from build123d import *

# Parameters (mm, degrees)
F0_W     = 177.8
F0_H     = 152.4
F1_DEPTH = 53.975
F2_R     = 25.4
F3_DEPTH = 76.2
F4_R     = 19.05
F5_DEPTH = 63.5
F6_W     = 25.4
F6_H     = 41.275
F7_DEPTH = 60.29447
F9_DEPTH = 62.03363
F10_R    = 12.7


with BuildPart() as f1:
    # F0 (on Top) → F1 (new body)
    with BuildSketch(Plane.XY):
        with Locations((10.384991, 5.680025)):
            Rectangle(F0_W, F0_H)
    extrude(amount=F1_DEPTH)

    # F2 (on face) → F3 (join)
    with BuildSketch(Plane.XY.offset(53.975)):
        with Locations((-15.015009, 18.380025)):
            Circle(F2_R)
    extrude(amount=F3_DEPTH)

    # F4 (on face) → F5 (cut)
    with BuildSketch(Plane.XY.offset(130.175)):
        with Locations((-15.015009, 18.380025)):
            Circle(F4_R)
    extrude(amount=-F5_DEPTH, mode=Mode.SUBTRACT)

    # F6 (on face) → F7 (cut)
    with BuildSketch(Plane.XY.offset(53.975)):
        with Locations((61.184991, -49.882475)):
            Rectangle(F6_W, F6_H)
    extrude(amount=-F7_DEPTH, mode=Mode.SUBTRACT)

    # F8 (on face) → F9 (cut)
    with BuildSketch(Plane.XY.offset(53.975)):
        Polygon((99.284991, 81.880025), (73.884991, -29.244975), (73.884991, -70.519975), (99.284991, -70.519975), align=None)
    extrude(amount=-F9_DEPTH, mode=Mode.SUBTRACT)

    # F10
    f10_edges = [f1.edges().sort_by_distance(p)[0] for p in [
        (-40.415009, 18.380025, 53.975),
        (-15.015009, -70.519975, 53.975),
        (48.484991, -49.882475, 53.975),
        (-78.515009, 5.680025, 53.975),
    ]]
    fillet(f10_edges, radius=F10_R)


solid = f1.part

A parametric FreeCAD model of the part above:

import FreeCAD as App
import Part
import Sketcher
Q = App.Units.Quantity


def edges_at(feature, points):
    """Names of the edges that pass closest to the given points."""
    edges = feature.Shape.Edges
    near = lambda p: min(range(len(edges)), key=lambda i: edges[i].distToShape(Part.Vertex(*p))[0])
    return sorted({f"Edge{near(p) + 1}" for p in points})

doc = App.newDocument("Part")
body = doc.addObject("PartDesign::Body", "Body")

sketch1 = body.newObject("Sketcher::SketchObject", "Sketch")
sketch1.AttachmentSupport = (doc.getObject("XY_Plane"), [""])
sketch1.MapMode = "FlatFace"
sketch1.addGeometry([
    Part.LineSegment(App.Vector(-78.515009, 81.880025, 0), App.Vector(-78.515009, -70.519975, 0)),
    Part.LineSegment(App.Vector(-78.515009, -70.519975, 0), App.Vector(99.284991, -70.519975, 0)),
    Part.LineSegment(App.Vector(99.284991, -70.519975, 0), App.Vector(99.284991, 81.880025, 0)),
    Part.LineSegment(App.Vector(99.284991, 81.880025, 0), App.Vector(-78.515009, 81.880025, 0)),
], False)
sketch1.addConstraint([
    Sketcher.Constraint("Coincident", 0, 2, 1, 1),
    Sketcher.Constraint("Coincident", 1, 2, 2, 1),
    Sketcher.Constraint("Coincident", 2, 2, 3, 1),
    Sketcher.Constraint("Coincident", 3, 2, 0, 1),
    Sketcher.Constraint("Vertical", 0),
    Sketcher.Constraint("Horizontal", 1),
    Sketcher.Constraint("Vertical", 2),
    Sketcher.Constraint("Horizontal", 3),
    Sketcher.Constraint("DistanceX", 1, 1, 1, 2, Q("7 in")),
    Sketcher.Constraint("DistanceY", 0, 2, 0, 1, Q("6 in")),
    Sketcher.Constraint("DistanceX", 0, 2, -1, 1, 78.515009),
    Sketcher.Constraint("DistanceY", 0, 2, -1, 1, 70.519975),
])
pad1 = body.newObject("PartDesign::Pad", "Pad")
pad1.Profile = sketch1
pad1.Length = Q("2.125 in")

sketch2 = body.newObject("Sketcher::SketchObject", "Sketch001")
sketch2.AttachmentSupport = (doc.getObject("XY_Plane"), [""])
sketch2.MapMode = "FlatFace"
sketch2.AttachmentOffset = App.Placement(App.Vector(0, 0, 2.125 * 25.4), App.Rotation())
sketch2.addGeometry(Part.Circle(App.Vector(-15.015009, 18.380025, 0), App.Vector(0, 0, 1), 25.4), False)
sketch2.addConstraint([
    Sketcher.Constraint("Diameter", 0, Q("2 in")),
    Sketcher.Constraint("DistanceX", 0, 3, -1, 1, 15.015009),
    Sketcher.Constraint("DistanceY", -1, 1, 0, 3, 18.380025),
])
pad2 = body.newObject("PartDesign::Pad", "Pad001")
pad2.Profile = sketch2
pad2.Length = Q("3 in")

sketch3 = body.newObject("Sketcher::SketchObject", "Sketch002")
sketch3.AttachmentSupport = (doc.getObject("XY_Plane"), [""])
sketch3.MapMode = "FlatFace"
sketch3.AttachmentOffset = App.Placement(App.Vector(0, 0, 5.125 * 25.4), App.Rotation())
sketch3.addGeometry(Part.Circle(App.Vector(-15.015009, 18.380025, 0), App.Vector(0, 0, 1), 19.05), False)
sketch3.addConstraint([
    Sketcher.Constraint("Diameter", 0, Q("1.5 in")),
    Sketcher.Constraint("DistanceX", 0, 3, -1, 1, 15.015009),
    Sketcher.Constraint("DistanceY", -1, 1, 0, 3, 18.380025),
])
pocket1 = body.newObject("PartDesign::Pocket", "Pocket")
pocket1.Profile = sketch3
pocket1.Length = Q("2.5 in")

sketch4 = body.newObject("Sketcher::SketchObject", "Sketch003")
sketch4.AttachmentSupport = (doc.getObject("XY_Plane"), [""])
sketch4.MapMode = "FlatFace"
sketch4.AttachmentOffset = App.Placement(App.Vector(0, 0, 2.125 * 25.4), App.Rotation())
sketch4.addGeometry([
    Part.LineSegment(App.Vector(48.484991, -29.244975, 0), App.Vector(48.484991, -70.519975, 0)),
    Part.LineSegment(App.Vector(48.484991, -70.519975, 0), App.Vector(73.884991, -70.519975, 0)),
    Part.LineSegment(App.Vector(73.884991, -70.519975, 0), App.Vector(73.884991, -29.244975, 0)),
    Part.LineSegment(App.Vector(73.884991, -29.244975, 0), App.Vector(48.484991, -29.244975, 0)),
], False)
sketch4.addConstraint([
    Sketcher.Constraint("Coincident", 0, 2, 1, 1),
    Sketcher.Constraint("Coincident", 1, 2, 2, 1),
    Sketcher.Constraint("Coincident", 2, 2, 3, 1),
    Sketcher.Constraint("Coincident", 3, 2, 0, 1),
    Sketcher.Constraint("Vertical", 0),
    Sketcher.Constraint("Horizontal", 1),
    Sketcher.Constraint("Vertical", 2),
    Sketcher.Constraint("Horizontal", 3),
    Sketcher.Constraint("DistanceX", 1, 1, 1, 2, Q("1 in")),
    Sketcher.Constraint("DistanceY", 0, 2, 0, 1, Q("1.625 in")),
    Sketcher.Constraint("DistanceX", -1, 1, 0, 2, 48.484991),
    Sketcher.Constraint("DistanceY", 0, 2, -1, 1, 70.519975),
])
pocket2 = body.newObject("PartDesign::Pocket", "Pocket001")
pocket2.Profile = sketch4
pocket2.Length = 60.29447

sketch5 = body.newObject("Sketcher::SketchObject", "Sketch004")
sketch5.AttachmentSupport = (doc.getObject("XY_Plane"), [""])
sketch5.MapMode = "FlatFace"
sketch5.AttachmentOffset = App.Placement(App.Vector(0, 0, 2.125 * 25.4), App.Rotation())
sketch5.addGeometry([
    Part.LineSegment(App.Vector(99.284991, 81.880025, 0), App.Vector(73.884991, -29.244975, 0)),
    Part.LineSegment(App.Vector(73.884991, -29.244975, 0), App.Vector(73.884991, -70.519975, 0)),
    Part.LineSegment(App.Vector(73.884991, -70.519975, 0), App.Vector(99.284991, -70.519975, 0)),
    Part.LineSegment(App.Vector(99.284991, -70.519975, 0), App.Vector(99.284991, 81.880025, 0)),
], False)
sketch5.addConstraint([
    Sketcher.Constraint("Coincident", 0, 2, 1, 1),
    Sketcher.Constraint("Coincident", 1, 2, 2, 1),
    Sketcher.Constraint("Coincident", 2, 2, 3, 1),
    Sketcher.Constraint("Coincident", 3, 2, 0, 1),
    Sketcher.Constraint("Vertical", 1),
    Sketcher.Constraint("Horizontal", 2),
    Sketcher.Constraint("Vertical", 3),
    Sketcher.Constraint("DistanceX", 2, 1, 2, 2, Q("1 in")),
    Sketcher.Constraint("DistanceY", 3, 1, 3, 2, Q("6 in")),
    Sketcher.Constraint("DistanceY", 1, 2, 1, 1, Q("1.625 in")),
    Sketcher.Constraint("DistanceX", -1, 1, 0, 2, 73.884991),
    Sketcher.Constraint("DistanceY", 0, 2, -1, 1, 29.244975),
])
pocket3 = body.newObject("PartDesign::Pocket", "Pocket002")
pocket3.Profile = sketch5
pocket3.Length = 62.03363
doc.recompute()

fillet = body.newObject("PartDesign::Fillet", "Fillet")
fillet.Base = (pocket3, edges_at(pocket3, [
    (-40.415, 18.38, 53.975),
    (-15.015, -70.52, 53.975),
    (48.485, -49.882, 53.975),
    (-78.515, 5.68, 53.975),
]))
fillet.Radius = Q("0.5 in")

doc.recompute()
